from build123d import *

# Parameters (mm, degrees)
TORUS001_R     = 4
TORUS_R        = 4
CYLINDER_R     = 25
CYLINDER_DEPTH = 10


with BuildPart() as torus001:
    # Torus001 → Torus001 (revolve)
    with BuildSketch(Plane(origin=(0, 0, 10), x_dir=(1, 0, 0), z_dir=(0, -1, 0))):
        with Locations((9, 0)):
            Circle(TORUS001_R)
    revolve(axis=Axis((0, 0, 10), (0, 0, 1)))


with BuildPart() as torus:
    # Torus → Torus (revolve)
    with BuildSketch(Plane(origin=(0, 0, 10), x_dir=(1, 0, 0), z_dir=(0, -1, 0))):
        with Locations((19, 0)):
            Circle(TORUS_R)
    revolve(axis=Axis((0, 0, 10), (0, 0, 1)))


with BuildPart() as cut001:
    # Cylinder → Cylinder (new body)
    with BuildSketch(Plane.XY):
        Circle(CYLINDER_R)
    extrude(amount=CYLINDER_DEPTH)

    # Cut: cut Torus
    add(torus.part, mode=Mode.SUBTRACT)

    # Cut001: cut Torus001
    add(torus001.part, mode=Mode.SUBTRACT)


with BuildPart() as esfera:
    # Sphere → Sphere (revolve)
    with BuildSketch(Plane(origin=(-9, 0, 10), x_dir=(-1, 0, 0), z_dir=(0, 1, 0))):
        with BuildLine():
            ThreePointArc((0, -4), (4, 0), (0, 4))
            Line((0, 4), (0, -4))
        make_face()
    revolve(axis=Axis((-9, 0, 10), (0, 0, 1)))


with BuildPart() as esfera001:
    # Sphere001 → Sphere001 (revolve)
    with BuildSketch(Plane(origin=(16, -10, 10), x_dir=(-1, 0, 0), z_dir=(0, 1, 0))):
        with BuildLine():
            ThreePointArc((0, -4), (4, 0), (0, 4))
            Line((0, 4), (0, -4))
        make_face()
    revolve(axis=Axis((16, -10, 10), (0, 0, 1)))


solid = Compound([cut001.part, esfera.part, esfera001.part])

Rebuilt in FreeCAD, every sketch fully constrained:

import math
import FreeCAD as App
import Part
import Sketcher

doc = App.newDocument("Part")
params = doc.addObject("Spreadsheet::Sheet", "Params")
for row, (alias, value) in enumerate([
    ("sketch1_diameter", "8 mm"),
    ("revolution_angle", "360 deg"),
    ("sketch2_diameter", "8 mm"),
    ("revolution2_angle", "360 deg"),
    ("sketch3_diameter", "50 mm"),
    ("pad1_length", "10 mm"),
    ("sketch4_radius", "4 mm"),
    ("revolution3_angle", "360 deg"),
    ("sketch5_radius", "4 mm"),
    ("revolution4_angle", "360 deg"),
], start=1):
    params.set(f"A{row}", alias)
    params.set(f"B{row}", "=" + value)
    params.setAlias(f"B{row}", alias)

body = doc.addObject("PartDesign::Body", "Body")

# Sketch on XZ plane
sketch1 = body.newObject("Sketcher::SketchObject", "Sketch")
sketch1.AttachmentSupport = (doc.getObject("XZ_Plane"), [""])
sketch1.MapMode = "FlatFace"
sketch1.addGeometry(Part.Circle(App.Vector(9, 10, 0), App.Vector(0, 0, 1), 4), False)
sketch1.addConstraint(Sketcher.Constraint("Diameter", 0, 8.0))
sketch1.addConstraint(Sketcher.Constraint("DistanceX", -1, 1, 0, 3, 9.0))
sketch1.addConstraint(Sketcher.Constraint("DistanceY", -1, 1, 0, 3, 10.0))
sketch1.setExpression("Constraints[0]", "Params.sketch1_diameter")
revolution = body.newObject("PartDesign::Revolution", "Revolution")
revolution.Profile = sketch1
revolution.ReferenceAxis = (sketch1, ["V_Axis"])
revolution.setExpression("Angle", "Params.revolution_angle")
body2 = doc.addObject("PartDesign::Body", "Body001")

# Sketch on XZ plane
sketch2 = body2.newObject("Sketcher::SketchObject", "Sketch001")
sketch2.AttachmentSupport = (doc.getObject("XZ_Plane001"), [""])
sketch2.MapMode = "FlatFace"
sketch2.addGeometry(Part.Circle(App.Vector(19, 10, 0), App.Vector(0, 0, 1), 4), False)
sketch2.addConstraint(Sketcher.Constraint("Diameter", 0, 8.0))
sketch2.addConstraint(Sketcher.Constraint("DistanceX", -1, 1, 0, 3, 19.0))
sketch2.addConstraint(Sketcher.Constraint("DistanceY", -1, 1, 0, 3, 10.0))
sketch2.setExpression("Constraints[0]", "Params.sketch2_diameter")
revolution2 = body2.newObject("PartDesign::Revolution", "Revolution001")
revolution2.Profile = sketch2
revolution2.ReferenceAxis = (sketch2, ["V_Axis"])
revolution2.setExpression("Angle", "Params.revolution2_angle")
body3 = doc.addObject("PartDesign::Body", "Body002")

# Sketch on XY plane
sketch3 = body3.newObject("Sketcher::SketchObject", "Sketch002")
sketch3.AttachmentSupport = (doc.getObject("XY_Plane002"), [""])
sketch3.MapMode = "FlatFace"
sketch3.addGeometry(Part.Circle(App.Vector(0, 0, 0), App.Vector(0, 0, 1), 25), False)
sketch3.addConstraint(Sketcher.Constraint("Coincident", 0, 3, -1, 1))
sketch3.addConstraint(Sketcher.Constraint("Diameter", 0, 50.0))
sketch3.setExpression("Constraints[1]", "Params.sketch3_diameter")
pad1 = body3.newObject("PartDesign::Pad", "Pad")
pad1.Profile = sketch3
pad1.setExpression("Length", "Params.pad1_length")
doc.recompute()

boolean = body3.newObject("PartDesign::Boolean", "Boolean")
boolean.Type = "Cut"
boolean.addObjects([body2])
doc.recompute()

boolean2 = body3.newObject("PartDesign::Boolean", "Boolean001")
boolean2.Type = "Cut"
boolean2.addObjects([body])
body4 = doc.addObject("PartDesign::Body", "Body003")

# Sketch on XZ plane
sketch4 = body4.newObject("Sketcher::SketchObject", "Sketch003")
sketch4.AttachmentSupport = (doc.getObject("XZ_Plane003"), [""])
sketch4.MapMode = "FlatFace"
sketch4.addGeometry(Part.ArcOfCircle(Part.Circle(App.Vector(-9, 10, 0), App.Vector(0, 0, 1), 4), math.radians(90), math.radians(270)), False)
sketch4.addGeometry(Part.LineSegment(App.Vector(-9, 14, 0), App.Vector(-9, 6, 0)), False)
sketch4.addGeometry(Part.LineSegment(App.Vector(-9, 6, 0), App.Vector(-9, 14, 0)), True)  # axis
sketch4.addConstraint(Sketcher.Constraint("Coincident", 0, 1, 1, 1))
sketch4.addConstraint(Sketcher.Constraint("Coincident", 1, 2, 0, 2))
sketch4.addConstraint(Sketcher.Constraint("Vertical", 1))
sketch4.addConstraint(Sketcher.Constraint("Vertical", 2))
sketch4.addConstraint(Sketcher.Constraint("Coincident", 2, 1, 1, 2))
sketch4.addConstraint(Sketcher.Constraint("Equal", 1, 2))
sketch4.addConstraint(Sketcher.Constraint("Radius", 0, 4.0))
sketch4.addConstraint(Sketcher.Constraint("DistanceX", 0, 3, -1, 1, 9.0))
sketch4.addConstraint(Sketcher.Constraint("DistanceY", -1, 1, 0, 3, 10.0))
sketch4.addConstraint(Sketcher.Constraint("DistanceX", 0, 1, -1, 1, 9.0))
sketch4.setExpression("Constraints[6]", "Params.sketch4_radius")
revolution3 = body4.newObject("PartDesign::Revolution", "Revolution002")
revolution3.Profile = sketch4
revolution3.ReferenceAxis = (sketch4, ["Axis0"])
revolution3.setExpression("Angle", "Params.revolution3_angle")
body5 = doc.addObject("PartDesign::Body", "Body004")

# Sketch on XZ plane
sketch5 = body5.newObject("Sketcher::SketchObject", "Sketch004")
sketch5.AttachmentSupport = (doc.getObject("XZ_Plane004"), [""])
sketch5.MapMode = "FlatFace"
sketch5.AttachmentOffset = App.Placement(App.Vector(0, 0, 10), App.Rotation())
sketch5.addGeometry(Part.ArcOfCircle(Part.Circle(App.Vector(16, 10, 0), App.Vector(0, 0, 1), 4), math.radians(90), math.radians(270)), False)
sketch5.addGeometry(Part.LineSegment(App.Vector(16, 14, 0), App.Vector(16, 6, 0)), False)
sketch5.addGeometry(Part.LineSegment(App.Vector(16, 6, 0), App.Vector(16, 14, 0)), True)  # axis
sketch5.addConstraint(Sketcher.Constraint("Coincident", 0, 1, 1, 1))
sketch5.addConstraint(Sketcher.Constraint("Coincident", 1, 2, 0, 2))
sketch5.addConstraint(Sketcher.Constraint("Vertical", 1))
sketch5.addConstraint(Sketcher.Constraint("Vertical", 2))
sketch5.addConstraint(Sketcher.Constraint("Coincident", 2, 1, 1, 2))
sketch5.addConstraint(Sketcher.Constraint("Equal", 1, 2))
sketch5.addConstraint(Sketcher.Constraint("Radius", 0, 4.0))
sketch5.addConstraint(Sketcher.Constraint("DistanceX", -1, 1, 0, 3, 16.0))
sketch5.addConstraint(Sketcher.Constraint("DistanceY", -1, 1, 0, 3, 10.0))
sketch5.addConstraint(Sketcher.Constraint("DistanceX", -1, 1, 0, 1, 16.0))
sketch5.setExpression("Constraints[6]", "Params.sketch5_radius")
revolution4 = body5.newObject("PartDesign::Revolution", "Revolution003")
revolution4.Profile = sketch5
revolution4.ReferenceAxis = (sketch5, ["Axis0"])
revolution4.setExpression("Angle", "Params.revolution4_angle")

doc.recompute()
